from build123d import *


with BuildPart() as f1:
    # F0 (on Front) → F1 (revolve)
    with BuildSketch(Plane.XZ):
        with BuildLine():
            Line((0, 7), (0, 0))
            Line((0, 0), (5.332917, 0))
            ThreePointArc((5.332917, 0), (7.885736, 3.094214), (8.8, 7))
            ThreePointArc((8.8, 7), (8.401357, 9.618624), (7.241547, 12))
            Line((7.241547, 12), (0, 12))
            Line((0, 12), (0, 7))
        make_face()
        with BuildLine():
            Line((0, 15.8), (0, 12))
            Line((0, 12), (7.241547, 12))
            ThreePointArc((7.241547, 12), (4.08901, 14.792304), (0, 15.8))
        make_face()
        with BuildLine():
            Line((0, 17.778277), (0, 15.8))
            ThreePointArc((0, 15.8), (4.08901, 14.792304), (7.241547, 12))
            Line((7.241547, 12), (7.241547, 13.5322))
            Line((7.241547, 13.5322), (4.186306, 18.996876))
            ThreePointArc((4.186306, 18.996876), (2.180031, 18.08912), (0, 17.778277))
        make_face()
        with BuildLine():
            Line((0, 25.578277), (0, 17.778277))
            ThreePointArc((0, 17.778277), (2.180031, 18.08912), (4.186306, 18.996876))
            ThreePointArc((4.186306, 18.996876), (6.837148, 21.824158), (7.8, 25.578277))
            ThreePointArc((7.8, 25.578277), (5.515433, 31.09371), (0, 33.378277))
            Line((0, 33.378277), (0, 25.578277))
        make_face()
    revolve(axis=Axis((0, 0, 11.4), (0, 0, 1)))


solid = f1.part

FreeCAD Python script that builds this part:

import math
import FreeCAD as App
import Part
import Sketcher

V = App.Vector
Q = App.Units.Quantity

doc = App.newDocument("Part")
params = doc.addObject("Spreadsheet::Sheet", "Params")
for row, (alias, value) in enumerate([
    ("sketch1_radius", "7.799998 mm"),
    ("revolution_angle", "360 deg"),
], start=1):
    params.set(f"A{row}", alias)
    params.set(f"B{row}", "=" + value)
    params.setAlias(f"B{row}", alias)

body = doc.addObject("PartDesign::Body", "Body")

sketch1 = doc.addObject("Sketcher::SketchObject", "Sketch")
body.addObject(sketch1)
sketch1.AttachmentSupport = (doc.XZ_Plane, [""])
sketch1.MapMode = "FlatFace"
sketch1.addGeometry(Part.LineSegment(V(0, 0, 0), V(5.332917, 0, 0)), False)
sketch1.addGeometry(Part.ArcOfCircle(Part.Circle(V(-0.000003, 7.000001, 0), V(0, 0, 1), 8.800003), math.radians(-52.698198), math.radians(-0.000007)), False)
sketch1.addGeometry(Part.ArcOfCircle(Part.Circle(V(-0.000013, 6.999996, 0), V(0, 0, 1), 8.800013), math.radians(0.000023), math.radians(34.623508)), False)
sketch1.addGeometry(Part.LineSegment(V(7.241547, 12, 0), V(7.241547, 13.5322, 0)), False)
sketch1.addGeometry(Part.LineSegment(V(7.241547, 13.5322, 0), V(4.186306, 18.996876, 0)), False)
sketch1.addGeometry(Part.ArcOfCircle(Part.Circle(V(0.000002, 25.578276, 0), V(0, 0, 1), 7.799998), math.radians(-57.540332), math.radians(0.000006)), False)
sketch1.addGeometry(Part.ArcOfCircle(Part.Circle(V(0, 25.578277, 0), V(0, 0, 1), 7.8), math.radians(-0.000003), math.radians(90.000003)), False)
sketch1.addGeometry(Part.LineSegment(V(0, 33.378277, 0), V(0, 0, 0)), False)
sketch1.addConstraint(Sketcher.Constraint("Coincident", 0, 2, 1, 1))
sketch1.addConstraint(Sketcher.Constraint("Tangent", 1, 2, 2, 1))
sketch1.addConstraint(Sketcher.Constraint("Coincident", 2, 2, 3, 1))
sketch1.addConstraint(Sketcher.Constraint("Coincident", 3, 2, 4, 1))
sketch1.addConstraint(Sketcher.Constraint("Coincident", 4, 2, 5, 1))
sketch1.addConstraint(Sketcher.Constraint("Tangent", 5, 2, 6, 1))
sketch1.addConstraint(Sketcher.Constraint("Coincident", 6, 2, 7, 1))
sketch1.addConstraint(Sketcher.Constraint("Coincident", 7, 2, 0, 1))
sketch1.addConstraint(Sketcher.Constraint("Horizontal", 0))
sketch1.addConstraint(Sketcher.Constraint("Vertical", 3))
sketch1.addConstraint(Sketcher.Constraint("Vertical", 7))
sketch1.addConstraint(Sketcher.Constraint("Coincident", 7, 2, -1, 1))
sketch1.addConstraint(Sketcher.Constraint("Equal", 5, 6))
sketch1.addConstraint(Sketcher.Constraint("PointOnObject", 5, 3, -2))
sketch1.addConstraint(Sketcher.Constraint("Horizontal", 6, 3, 5, 2))
sketch1.addConstraint(Sketcher.Constraint("Radius", 5, Q("7.799998 mm")))
sketch1.addConstraint(Sketcher.Constraint("DistanceY", -1, 1, 1, 3, Q("7.000001 mm")))
sketch1.addConstraint(Sketcher.Constraint("DistanceY", -1, 1, 1, 2, Q("7 mm")))
sketch1.addConstraint(Sketcher.Constraint("DistanceY", -1, 1, 2, 2, Q("12 mm")))
sketch1.addConstraint(Sketcher.Constraint("DistanceX", -1, 1, 1, 2, Q("8.8 mm")))
sketch1.addConstraint(Sketcher.Constraint("DistanceY", 3, 1, 3, 2, Q("1.5322 mm")))
sketch1.addConstraint(Sketcher.Constraint("Radius", 1, Q("8.800003 mm")))
sketch1.addConstraint(Sketcher.Constraint("Radius", 2, Q("8.800013 mm")))
sketch1.addConstraint(Sketcher.Constraint("DistanceY", 4, 2, 5, 3, Q("6.5814 mm")))
sketch1.addConstraint(Sketcher.Constraint("DistanceY", 7, 2, 7, 1, Q("33.378277 mm")))
sketch1.setExpression("Constraints[15]", "Params.sketch1_radius")
revolution = doc.addObject("PartDesign::Revolution", "Revolution")
body.addObject(revolution)
revolution.Profile = sketch1
revolution.ReferenceAxis = (sketch1, ["V_Axis"])
revolution.setExpression("Angle", "Params.revolution_angle")

doc.recompute()
